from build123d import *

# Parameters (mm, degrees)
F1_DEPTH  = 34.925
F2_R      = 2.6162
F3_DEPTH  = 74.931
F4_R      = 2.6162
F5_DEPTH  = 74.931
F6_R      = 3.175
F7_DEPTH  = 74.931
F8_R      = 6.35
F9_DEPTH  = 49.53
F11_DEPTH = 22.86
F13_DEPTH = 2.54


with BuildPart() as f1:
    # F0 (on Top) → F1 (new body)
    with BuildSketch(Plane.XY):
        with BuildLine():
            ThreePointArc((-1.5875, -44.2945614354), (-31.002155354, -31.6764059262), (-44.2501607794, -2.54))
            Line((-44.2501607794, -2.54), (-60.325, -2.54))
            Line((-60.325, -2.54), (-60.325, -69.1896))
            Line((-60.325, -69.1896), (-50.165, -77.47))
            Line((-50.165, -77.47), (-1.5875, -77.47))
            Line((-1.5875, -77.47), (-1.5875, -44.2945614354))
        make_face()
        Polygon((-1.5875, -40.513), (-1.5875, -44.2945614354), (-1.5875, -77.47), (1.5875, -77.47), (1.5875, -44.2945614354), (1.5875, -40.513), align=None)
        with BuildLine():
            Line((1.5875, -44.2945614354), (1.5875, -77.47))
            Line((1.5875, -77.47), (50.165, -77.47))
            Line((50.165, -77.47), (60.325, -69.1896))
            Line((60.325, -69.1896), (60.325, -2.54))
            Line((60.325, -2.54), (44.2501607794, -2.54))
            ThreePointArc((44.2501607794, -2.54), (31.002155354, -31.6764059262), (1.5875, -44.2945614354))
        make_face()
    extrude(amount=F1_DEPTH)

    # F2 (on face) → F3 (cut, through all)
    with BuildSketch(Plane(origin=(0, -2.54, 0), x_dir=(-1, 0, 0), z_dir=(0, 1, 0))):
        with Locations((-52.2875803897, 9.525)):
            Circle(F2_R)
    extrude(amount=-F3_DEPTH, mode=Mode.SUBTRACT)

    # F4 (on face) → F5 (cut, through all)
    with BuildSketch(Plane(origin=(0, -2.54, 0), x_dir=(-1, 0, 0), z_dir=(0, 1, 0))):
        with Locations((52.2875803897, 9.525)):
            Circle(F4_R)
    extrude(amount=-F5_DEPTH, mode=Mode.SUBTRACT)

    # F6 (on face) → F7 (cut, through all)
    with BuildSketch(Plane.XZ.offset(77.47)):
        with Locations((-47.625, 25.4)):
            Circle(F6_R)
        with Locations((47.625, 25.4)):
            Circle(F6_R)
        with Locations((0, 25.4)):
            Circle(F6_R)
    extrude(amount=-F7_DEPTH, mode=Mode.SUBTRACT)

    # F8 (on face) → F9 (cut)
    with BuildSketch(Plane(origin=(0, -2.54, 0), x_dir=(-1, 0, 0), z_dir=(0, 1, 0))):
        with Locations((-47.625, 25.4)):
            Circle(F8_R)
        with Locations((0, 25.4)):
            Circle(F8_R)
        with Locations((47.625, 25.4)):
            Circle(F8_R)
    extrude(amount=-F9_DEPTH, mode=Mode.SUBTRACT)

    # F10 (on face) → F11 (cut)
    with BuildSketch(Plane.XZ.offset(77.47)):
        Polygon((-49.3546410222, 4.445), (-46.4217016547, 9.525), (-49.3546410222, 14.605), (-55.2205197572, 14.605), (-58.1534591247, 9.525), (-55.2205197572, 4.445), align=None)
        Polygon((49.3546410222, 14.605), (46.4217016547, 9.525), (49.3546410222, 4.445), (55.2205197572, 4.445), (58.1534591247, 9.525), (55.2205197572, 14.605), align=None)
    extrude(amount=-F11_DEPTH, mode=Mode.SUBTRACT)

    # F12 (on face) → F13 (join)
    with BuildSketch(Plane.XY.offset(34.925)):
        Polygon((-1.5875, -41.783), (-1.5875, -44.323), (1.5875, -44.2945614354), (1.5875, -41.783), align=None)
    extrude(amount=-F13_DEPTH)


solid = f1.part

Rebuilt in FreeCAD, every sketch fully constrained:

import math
import FreeCAD as App
import Part
import Sketcher
Q = App.Units.Quantity


def add_polygon(sketch, points):
    """Adds a closed chain of lines whose ends are joined by coincident constraints."""
    first, n = sketch.GeometryCount, len(points)
    for a, b in zip(points, points[1:] + points[:1]):
        sketch.addGeometry(Part.LineSegment(App.Vector(*a, 0), App.Vector(*b, 0)), False)
    for i in range(n):
        sketch.addConstraint(Sketcher.Constraint("Coincident", first + i, 2, first + (i + 1) % n, 1))

doc = App.newDocument("Part")
params = doc.addObject("Spreadsheet::Sheet", "Params")
for row, (alias, value) in enumerate([
    ("sketch1_radius", "1.745 in"),
    ("sketch1_width", "3.95 in"),
    ("sketch1_width2", "0.125 in"),
    ("sketch1_height", "2.624 in"),
    ("pad1_length", "1.375 in"),
    ("sketch2_diameter", "0.206 in"),
    ("sketch3_diameter", "0.206 in"),
    ("sketch4_diameter", "0.25 in"),
    ("sketch5_diameter", "0.5 in"),
    ("pocket4_length", "1.95 in"),
    ("pocket5_length", "0.9 in"),
    ("sketch7_height", "0.1 in"),
    ("sketch7_width", "0.125 in"),
    ("pad2_length", "0.1 in"),
], start=1):
    params.set(f"A{row}", alias)
    params.set(f"B{row}", "=" + value)
    params.setAlias(f"B{row}", alias)

body = doc.addObject("PartDesign::Body", "Body")

sketch1 = doc.addObject("Sketcher::SketchObject", "Sketch")
body.addObject(sketch1)
sketch1.AttachmentSupport = (doc.XY_Plane, [""])
sketch1.MapMode = "FlatFace"
sketch1.addGeometry(Part.ArcOfCircle(Part.Circle(App.Vector(0, 0, 0), App.Vector(0, 0, 1), 44.3), math.radians(-177), math.radians(-92)), False)
sketch1.addGeometry(Part.LineSegment(App.Vector(-44.3, -2.5, 0), App.Vector(-60.3, -2.5, 0)), False)
sketch1.addGeometry(Part.LineSegment(App.Vector(-60.3, -2.5, 0), App.Vector(-60.3, -69.2, 0)), False)
sketch1.addGeometry(Part.LineSegment(App.Vector(-60.3, -69.2, 0), App.Vector(-50.2, -77.5, 0)), False)
sketch1.addGeometry(Part.LineSegment(App.Vector(-50.2, -77.5, 0), App.Vector(50.2, -77.5, 0)), False)
sketch1.addGeometry(Part.LineSegment(App.Vector(50.2, -77.5, 0), App.Vector(60.3, -69.2, 0)), False)
sketch1.addGeometry(Part.LineSegment(App.Vector(60.3, -69.2, 0), App.Vector(60.3, -2.5, 0)), False)
sketch1.addGeometry(Part.LineSegment(App.Vector(60.3, -2.5, 0), App.Vector(44.3, -2.5, 0)), False)
sketch1.addGeometry(Part.ArcOfCircle(Part.Circle(App.Vector(0, 0, 0), App.Vector(0, 0, 1), 44.3), math.radians(-88), math.radians(-3)), False)
sketch1.addGeometry(Part.LineSegment(App.Vector(1.6, -44.3, 0), App.Vector(1.6, -40.5, 0)), False)
sketch1.addGeometry(Part.LineSegment(App.Vector(1.6, -40.5, 0), App.Vector(-1.6, -40.5, 0)), False)
sketch1.addGeometry(Part.LineSegment(App.Vector(-1.6, -40.5, 0), App.Vector(-1.6, -44.3, 0)), False)
sketch1.addConstraint(Sketcher.Constraint("Coincident", 0, 1, 1, 1))
sketch1.addConstraint(Sketcher.Constraint("Coincident", 1, 2, 2, 1))
sketch1.addConstraint(Sketcher.Constraint("Coincident", 2, 2, 3, 1))
sketch1.addConstraint(Sketcher.Constraint("Coincident", 3, 2, 4, 1))
sketch1.addConstraint(Sketcher.Constraint("Coincident", 4, 2, 5, 1))
sketch1.addConstraint(Sketcher.Constraint("Coincident", 5, 2, 6, 1))
sketch1.addConstraint(Sketcher.Constraint("Coincident", 6, 2, 7, 1))
sketch1.addConstraint(Sketcher.Constraint("Coincident", 7, 2, 8, 2))
sketch1.addConstraint(Sketcher.Constraint("Coincident", 8, 1, 9, 1))
sketch1.addConstraint(Sketcher.Constraint("Coincident", 9, 2, 10, 1))
sketch1.addConstraint(Sketcher.Constraint("Coincident", 10, 2, 11, 1))
sketch1.addConstraint(Sketcher.Constraint("Coincident", 11, 2, 0, 2))
sketch1.addConstraint(Sketcher.Constraint("Horizontal", 1))
sketch1.addConstraint(Sketcher.Constraint("Vertical", 2))
sketch1.addConstraint(Sketcher.Constraint("Horizontal", 4))
sketch1.addConstraint(Sketcher.Constraint("Vertical", 6))
sketch1.addConstraint(Sketcher.Constraint("Horizontal", 7))
sketch1.addConstraint(Sketcher.Constraint("Vertical", 9))
sketch1.addConstraint(Sketcher.Constraint("Horizontal", 10))
sketch1.addConstraint(Sketcher.Constraint("Vertical", 11))
sketch1.addConstraint(Sketcher.Constraint("Coincident", 0, 3, -1, 1))
sketch1.addConstraint(Sketcher.Constraint("Coincident", 8, 3, -1, 1))
sketch1.addConstraint(Sketcher.Constraint("Equal", 0, 8))
sketch1.addConstraint(Sketcher.Constraint("Symmetric", 2, 2, 5, 2, -2))
sketch1.addConstraint(Sketcher.Constraint("Horizontal", 1, 2, 6, 2))
sketch1.addConstraint(Sketcher.Constraint("Horizontal", 8, 1, 11, 2))
sketch1.addConstraint(Sketcher.Constraint("Equal", 3, 5))
sketch1.addConstraint(Sketcher.Constraint("Radius", 0, Q("1.745 in")))
sketch1.addConstraint(Sketcher.Constraint("DistanceX", 4, 1, 4, 2, Q("3.95 in")))
sketch1.addConstraint(Sketcher.Constraint("DistanceY", 0, 1, -1, 1, Q("0.1 in")))
sketch1.addConstraint(Sketcher.Constraint("DistanceX", 2, 2, 3, 2, Q("0.4 in")))
sketch1.addConstraint(Sketcher.Constraint("DistanceX", 10, 2, 10, 1, Q("0.125 in")))
sketch1.addConstraint(Sketcher.Constraint("DistanceY", 2, 2, 2, 1, Q("2.624 in")))
sketch1.addConstraint(Sketcher.Constraint("DistanceY", 3, 2, -1, 1, Q("3.05 in")))
sketch1.addConstraint(Sketcher.Constraint("DistanceY", 9, 2, -1, 1, Q("1.595 in")))
sketch1.setExpression("Constraints[27]", "Params.sketch1_radius")
sketch1.setExpression("Constraints[28]", "Params.sketch1_width")
sketch1.setExpression("Constraints[31]", "Params.sketch1_width2")
sketch1.setExpression("Constraints[32]", "Params.sketch1_height")
pad1 = doc.addObject("PartDesign::Pad", "Pad")
body.addObject(pad1)
pad1.Profile = sketch1
pad1.setExpression("Length", "Params.pad1_length")

sketch2 = doc.addObject("Sketcher::SketchObject", "Sketch001")
body.addObject(sketch2)
sketch2.AttachmentSupport = (doc.XZ_Plane, [""])
sketch2.MapMode = "FlatFace"
sketch2.AttachmentOffset = App.Placement(App.Vector(0, 0, 0.1 * 25.4), App.Rotation())
sketch2.addGeometry(Part.Circle(App.Vector(52.3, 9.5, 0), App.Vector(0, 0, 1), 2.6), False)
sketch2.addConstraint(Sketcher.Constraint("Diameter", 0, Q("0.206 in")))
sketch2.addConstraint(Sketcher.Constraint("DistanceY", -1, 1, 0, 3, Q("0.375 in")))
sketch2.addConstraint(Sketcher.Constraint("DistanceX", -1, 1, 0, 3, 52.28758))
sketch2.setExpression("Constraints[0]", "Params.sketch2_diameter")
pocket1 = doc.addObject("PartDesign::Pocket", "Pocket")
body.addObject(pocket1)
pocket1.Profile = sketch2
pocket1.Type = "ThroughAll"
pocket1.Reversed = True

sketch3 = doc.addObject("Sketcher::SketchObject", "Sketch002")
body.addObject(sketch3)
sketch3.AttachmentSupport = (doc.XZ_Plane, [""])
sketch3.MapMode = "FlatFace"
sketch3.AttachmentOffset = App.Placement(App.Vector(0, 0, 0.1 * 25.4), App.Rotation())
sketch3.addGeometry(Part.Circle(App.Vector(-52.3, 9.5, 0), App.Vector(0, 0, 1), 2.6), False)
sketch3.addConstraint(Sketcher.Constraint("Diameter", 0, Q("0.206 in")))
sketch3.addConstraint(Sketcher.Constraint("DistanceY", -1, 1, 0, 3, Q("0.375 in")))
sketch3.addConstraint(Sketcher.Constraint("DistanceX", 0, 3, -1, 1, 52.28758))
sketch3.setExpression("Constraints[0]", "Params.sketch3_diameter")
pocket2 = doc.addObject("PartDesign::Pocket", "Pocket001")
body.addObject(pocket2)
pocket2.Profile = sketch3
pocket2.Type = "ThroughAll"
pocket2.Reversed = True

sketch4 = doc.addObject("Sketcher::SketchObject", "Sketch003")
body.addObject(sketch4)
sketch4.AttachmentSupport = (doc.XZ_Plane, [""])
sketch4.MapMode = "FlatFace"
sketch4.AttachmentOffset = App.Placement(App.Vector(0, 0, 3.05 * 25.4), App.Rotation())
sketch4.addGeometry(Part.Circle(App.Vector(-47.6, 25.4, 0), App.Vector(0, 0, 1), 3.2), False)
sketch4.addGeometry(Part.Circle(App.Vector(47.6, 25.4, 0), App.Vector(0, 0, 1), 3.2), False)
sketch4.addGeometry(Part.Circle(App.Vector(0, 25.4, 0), App.Vector(0, 0, 1), 3.2), False)
sketch4.addConstraint(Sketcher.Constraint("Equal", 0, 1))
sketch4.addConstraint(Sketcher.Constraint("Equal", 1, 2))
sketch4.addConstraint(Sketcher.Constraint("Symmetric", 0, 3, 1, 3, -2))
sketch4.addConstraint(Sketcher.Constraint("PointOnObject", 2, 3, -2))
sketch4.addConstraint(Sketcher.Constraint("Horizontal", 1, 3, 2, 3))
sketch4.addConstraint(Sketcher.Constraint("Diameter", 0, Q("0.25 in")))
sketch4.addConstraint(Sketcher.Constraint("DistanceY", -1, 1, 0, 3, Q("1 in")))
sketch4.addConstraint(Sketcher.Constraint("DistanceX", 0, 3, 1, 3, Q("3.75 in")))
sketch4.setExpression("Constraints[5]", "Params.sketch4_diameter")
pocket3 = doc.addObject("PartDesign::Pocket", "Pocket002")
body.addObject(pocket3)
pocket3.Profile = sketch4
pocket3.Type = "ThroughAll"

sketch5 = doc.addObject("Sketcher::SketchObject", "Sketch004")
body.addObject(sketch5)
sketch5.AttachmentSupport = (doc.XZ_Plane, [""])
sketch5.MapMode = "FlatFace"
sketch5.AttachmentOffset = App.Placement(App.Vector(0, 0, 0.1 * 25.4), App.Rotation())
sketch5.addGeometry(Part.Circle(App.Vector(48, 25, 0), App.Vector(0, 0, 1), 6), False)
sketch5.addGeometry(Part.Circle(App.Vector(0, 25, 0), App.Vector(0, 0, 1), 6), False)
sketch5.addGeometry(Part.Circle(App.Vector(-48, 25, 0), App.Vector(0, 0, 1), 6), False)
sketch5.addConstraint(Sketcher.Constraint("Equal", 0, 1))
sketch5.addConstraint(Sketcher.Constraint("Equal", 1, 2))
sketch5.addConstraint(Sketcher.Constraint("Symmetric", 0, 3, 2, 3, -2))
sketch5.addConstraint(Sketcher.Constraint("PointOnObject", 1, 3, -2))
sketch5.addConstraint(Sketcher.Constraint("Horizontal", 0, 3, 1, 3))
sketch5.addConstraint(Sketcher.Constraint("Diameter", 0, Q("0.5 in")))
sketch5.addConstraint(Sketcher.Constraint("DistanceY", -1, 1, 0, 3, Q("1 in")))
sketch5.addConstraint(Sketcher.Constraint("DistanceX", 2, 3, 0, 3, Q("3.75 in")))
sketch5.setExpression("Constraints[5]", "Params.sketch5_diameter")
pocket4 = doc.addObject("PartDesign::Pocket", "Pocket003")
body.addObject(pocket4)
pocket4.Profile = sketch5
pocket4.setExpression("Length", "Params.pocket4_length")
pocket4.Reversed = True

sketch6 = doc.addObject("Sketcher::SketchObject", "Sketch005")
body.addObject(sketch6)
sketch6.AttachmentSupport = (doc.XZ_Plane, [""])
sketch6.MapMode = "FlatFace"
sketch6.AttachmentOffset = App.Placement(App.Vector(0, 0, 3.05 * 25.4), App.Rotation())
add_polygon(sketch6, [(-49, 4), (-46, 10), (-49, 15), (-55, 15), (-58, 10), (-55, 4)])
add_polygon(sketch6, [(49, 15), (46, 10), (49, 4), (55, 4), (58, 10), (55, 15)])
sketch6.addConstraint(Sketcher.Constraint("Horizontal", 2))
sketch6.addConstraint(Sketcher.Constraint("Horizontal", 5))
sketch6.addConstraint(Sketcher.Constraint("Horizontal", 8))
sketch6.addConstraint(Sketcher.Constraint("Horizontal", 11))
sketch6.addConstraint(Sketcher.Constraint("Symmetric", 0, 2, 6, 2, -2))
sketch6.addConstraint(Sketcher.Constraint("Symmetric", 5, 2, 7, 2, -2))
sketch6.addConstraint(Sketcher.Constraint("Symmetric", 3, 2, 9, 2, -2))
sketch6.addConstraint(Sketcher.Constraint("Symmetric", 2, 2, 10, 2, -2))
sketch6.addConstraint(Sketcher.Constraint("Parallel", 0, 3))
sketch6.addConstraint(Sketcher.Constraint("Parallel", 1, 4))
sketch6.addConstraint(Sketcher.Constraint("Parallel", 3, 6))
sketch6.addConstraint(Sketcher.Constraint("Parallel", 4, 7))
sketch6.addConstraint(Sketcher.Constraint("Parallel", 6, 9))
sketch6.addConstraint(Sketcher.Constraint("Horizontal", 0, 2, 3, 2))
sketch6.addConstraint(Sketcher.Constraint("Vertical", 2, 2, 4, 2))
sketch6.addConstraint(Sketcher.Constraint("Angle", 0, Q("60 deg")))
sketch6.addConstraint(Sketcher.Constraint("DistanceY", 0, 2, 1, 2, Q("0.2 in")))
sketch6.addConstraint(Sketcher.Constraint("DistanceY", -1, 1, 0, 2, Q("0.375 in")))
sketch6.addConstraint(Sketcher.Constraint("DistanceX", 2, 2, 2, 1, 5.865879))
sketch6.addConstraint(Sketcher.Constraint("DistanceX", 0, 2, -1, 1, 46.421702))
pocket5 = doc.addObject("PartDesign::Pocket", "Pocket004")
body.addObject(pocket5)
pocket5.Profile = sketch6
pocket5.setExpression("Length", "Params.pocket5_length")

sketch7 = doc.addObject("Sketcher::SketchObject", "Sketch006")
body.addObject(sketch7)
sketch7.AttachmentSupport = (doc.XY_Plane, [""])
sketch7.MapMode = "FlatFace"
sketch7.AttachmentOffset = App.Placement(App.Vector(0, 0, 1.375 * 25.4), App.Rotation())
add_polygon(sketch7, [(-1.6, -41.8), (-1.6, -44.3), (1.6, -44.3), (1.6, -41.8)])
sketch7.addConstraint(Sketcher.Constraint("Vertical", 0))
sketch7.addConstraint(Sketcher.Constraint("Vertical", 2))
sketch7.addConstraint(Sketcher.Constraint("Horizontal", 3))
sketch7.addConstraint(Sketcher.Constraint("DistanceY", 0, 2, 0, 1, Q("0.1 in")))
sketch7.addConstraint(Sketcher.Constraint("DistanceX", 3, 2, 3, 1, Q("0.125 in")))
sketch7.addConstraint(Sketcher.Constraint("DistanceX", 0, 2, -1, 1, Q("0.0625 in")))
sketch7.addConstraint(Sketcher.Constraint("DistanceY", 0, 2, -1, 1, Q("1.745 in")))
sketch7.addConstraint(Sketcher.Constraint("DistanceY", 2, 1, 2, 2, 2.511561))
sketch7.setExpression("Constraints[7]", "Params.sketch7_height")
sketch7.setExpression("Constraints[8]", "Params.sketch7_width")
pad2 = doc.addObject("PartDesign::Pad", "Pad001")
body.addObject(pad2)
pad2.Profile = sketch7
pad2.setExpression("Length", "Params.pad2_length")
pad2.Reversed = True

doc.recompute()
